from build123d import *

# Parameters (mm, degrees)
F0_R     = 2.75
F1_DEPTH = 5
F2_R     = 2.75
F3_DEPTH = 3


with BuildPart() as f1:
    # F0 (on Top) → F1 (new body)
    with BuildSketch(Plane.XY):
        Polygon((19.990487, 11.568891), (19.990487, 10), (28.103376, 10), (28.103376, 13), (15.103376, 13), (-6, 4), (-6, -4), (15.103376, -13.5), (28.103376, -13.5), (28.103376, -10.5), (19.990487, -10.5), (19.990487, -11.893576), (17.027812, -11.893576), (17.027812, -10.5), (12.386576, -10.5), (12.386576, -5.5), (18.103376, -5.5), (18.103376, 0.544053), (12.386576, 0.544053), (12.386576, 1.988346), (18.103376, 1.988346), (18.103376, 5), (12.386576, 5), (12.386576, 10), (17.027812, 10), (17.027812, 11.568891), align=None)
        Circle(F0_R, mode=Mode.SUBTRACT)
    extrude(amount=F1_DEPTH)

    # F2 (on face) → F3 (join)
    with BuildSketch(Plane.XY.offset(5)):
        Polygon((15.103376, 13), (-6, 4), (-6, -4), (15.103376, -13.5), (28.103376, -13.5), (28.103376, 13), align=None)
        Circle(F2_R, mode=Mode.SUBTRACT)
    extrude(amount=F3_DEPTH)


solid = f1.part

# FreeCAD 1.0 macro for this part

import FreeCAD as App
import Part
import Sketcher
from FreeCAD import Vector

doc = App.newDocument("Part")
body = doc.addObject("PartDesign::Body", "Body")

# Sketch on XY plane
sketch1 = doc.addObject("Sketcher::SketchObject", "Sketch")
body.addObject(sketch1)
sketch1.AttachmentSupport = (doc.XY_Plane, [""])
sketch1.MapMode = "FlatFace"
sketch1.addGeometry([
    Part.LineSegment(Vector(20, 11.6, 0), Vector(20, 10, 0)),  # 0
    Part.LineSegment(Vector(20, 10, 0), Vector(28.1, 10, 0)),  # 1
    Part.LineSegment(Vector(28.1, 10, 0), Vector(28.1, 13, 0)),  # 2
    Part.LineSegment(Vector(28.1, 13, 0), Vector(15.1, 13, 0)),  # 3
    Part.LineSegment(Vector(15.1, 13, 0), Vector(-6, 4, 0)),  # 4
    Part.LineSegment(Vector(-6, 4, 0), Vector(-6, -4, 0)),  # 5
    Part.LineSegment(Vector(-6, -4, 0), Vector(15.1, -13.5, 0)),  # 6
    Part.LineSegment(Vector(15.1, -13.5, 0), Vector(28.1, -13.5, 0)),  # 7
    Part.LineSegment(Vector(28.1, -13.5, 0), Vector(28.1, -10.5, 0)),  # 8
    Part.LineSegment(Vector(28.1, -10.5, 0), Vector(20, -10.5, 0)),  # 9
    Part.LineSegment(Vector(20, -10.5, 0), Vector(20, -11.9, 0)),  # 10
    Part.LineSegment(Vector(20, -11.9, 0), Vector(17, -11.9, 0)),  # 11
    Part.LineSegment(Vector(17, -11.9, 0), Vector(17, -10.5, 0)),  # 12
    Part.LineSegment(Vector(17, -10.5, 0), Vector(12.4, -10.5, 0)),  # 13
    Part.LineSegment(Vector(12.4, -10.5, 0), Vector(12.4, -5.5, 0)),  # 14
    Part.LineSegment(Vector(12.4, -5.5, 0), Vector(18.1, -5.5, 0)),  # 15
    Part.LineSegment(Vector(18.1, -5.5, 0), Vector(18.1, 0.5, 0)),  # 16
    Part.LineSegment(Vector(18.1, 0.5, 0), Vector(12.4, 0.5, 0)),  # 17
    Part.LineSegment(Vector(12.4, 0.5, 0), Vector(12.4, 2, 0)),  # 18
    Part.LineSegment(Vector(12.4, 2, 0), Vector(18.1, 2, 0)),  # 19
    Part.LineSegment(Vector(18.1, 2, 0), Vector(18.1, 5, 0)),  # 20
    Part.LineSegment(Vector(18.1, 5, 0), Vector(12.4, 5, 0)),  # 21
    Part.LineSegment(Vector(12.4, 5, 0), Vector(12.4, 10, 0)),  # 22
    Part.LineSegment(Vector(12.4, 10, 0), Vector(17, 10, 0)),  # 23
    Part.LineSegment(Vector(17, 10, 0), Vector(17, 11.6, 0)),  # 24
    Part.LineSegment(Vector(17, 11.6, 0), Vector(20, 11.6, 0)),  # 25
    Part.Circle(Vector(0, 0, 0), Vector(0, 0, 1), 2.8),  # 26
], False)
sketch1.addConstraint([
    Sketcher.Constraint("Coincident", 0, 2, 1, 1),
    Sketcher.Constraint("Coincident", 1, 2, 2, 1),
    Sketcher.Constraint("Coincident", 2, 2, 3, 1),
    Sketcher.Constraint("Coincident", 3, 2, 4, 1),
    Sketcher.Constraint("Coincident", 4, 2, 5, 1),
    Sketcher.Constraint("Coincident", 5, 2, 6, 1),
    Sketcher.Constraint("Coincident", 6, 2, 7, 1),
    Sketcher.Constraint("Coincident", 7, 2, 8, 1),
    Sketcher.Constraint("Coincident", 8, 2, 9, 1),
    Sketcher.Constraint("Coincident", 9, 2, 10, 1),
    Sketcher.Constraint("Coincident", 10, 2, 11, 1),
    Sketcher.Constraint("Coincident", 11, 2, 12, 1),
    Sketcher.Constraint("Coincident", 12, 2, 13, 1),
    Sketcher.Constraint("Coincident", 13, 2, 14, 1),
    Sketcher.Constraint("Coincident", 14, 2, 15, 1),
    Sketcher.Constraint("Coincident", 15, 2, 16, 1),
    Sketcher.Constraint("Coincident", 16, 2, 17, 1),
    Sketcher.Constraint("Coincident", 17, 2, 18, 1),
    Sketcher.Constraint("Coincident", 18, 2, 19, 1),
    Sketcher.Constraint("Coincident", 19, 2, 20, 1),
    Sketcher.Constraint("Coincident", 20, 2, 21, 1),
    Sketcher.Constraint("Coincident", 21, 2, 22, 1),
    Sketcher.Constraint("Coincident", 22, 2, 23, 1),
    Sketcher.Constraint("Coincident", 23, 2, 24, 1),
    Sketcher.Constraint("Coincident", 24, 2, 25, 1),
    Sketcher.Constraint("Coincident", 25, 2, 0, 1),
    Sketcher.Constraint("Vertical", 0),
    Sketcher.Constraint("Horizontal", 1),
    Sketcher.Constraint("Vertical", 2),
    Sketcher.Constraint("Horizontal", 3),
    Sketcher.Constraint("Vertical", 5),
    Sketcher.Constraint("Horizontal", 7),
    Sketcher.Constraint("Vertical", 8),
    Sketcher.Constraint("Horizontal", 9),
    Sketcher.Constraint("Vertical", 10),
    Sketcher.Constraint("Horizontal", 11),
    Sketcher.Constraint("Vertical", 12),
    Sketcher.Constraint("Horizontal", 13),
    Sketcher.Constraint("Vertical", 14),
    Sketcher.Constraint("Horizontal", 15),
    Sketcher.Constraint("Vertical", 16),
    Sketcher.Constraint("Horizontal", 17),
    Sketcher.Constraint("Vertical", 18),
    Sketcher.Constraint("Horizontal", 19),
    Sketcher.Constraint("Vertical", 20),
    Sketcher.Constraint("Horizontal", 21),
    Sketcher.Constraint("Vertical", 22),
    Sketcher.Constraint("Horizontal", 23),
    Sketcher.Constraint("Vertical", 24),
    Sketcher.Constraint("Horizontal", 25),
    Sketcher.Constraint("Coincident", 26, 3, -1, 1),
    Sketcher.Constraint("Horizontal", 9, 2, 12, 2),
    Sketcher.Constraint("Horizontal", 1, 2, 22, 2),
    Sketcher.Constraint("Vertical", 3, 2, 6, 2),
    Sketcher.Constraint("Vertical", 2, 2, 7, 2),
    Sketcher.Constraint("Vertical", 0, 2, 9, 2),
    Sketcher.Constraint("Vertical", 14, 2, 17, 2),
    Sketcher.Constraint("Vertical", 16, 2, 19, 2),
    Sketcher.Constraint("Vertical", 18, 2, 21, 2),
    Sketcher.Constraint("Vertical", 12, 2, 23, 2),
    Sketcher.Constraint("Equal", 2, 8),
    Sketcher.Constraint("Equal", 14, 22),
    Sketcher.Constraint("Diameter", 26, 5.5),
    Sketcher.Constraint("DistanceX", 3, 2, 3, 1, 13.0),
    Sketcher.Constraint("DistanceY", 2, 1, 2, 2, 3.0),
    Sketcher.Constraint("DistanceY", 5, 2, 5, 1, 8.0),
    Sketcher.Constraint("DistanceY", 14, 1, 14, 2, 5.0),
    Sketcher.Constraint("DistanceY", -1, 1, 0, 2, 10.0),
    Sketcher.Constraint("DistanceX", 4, 2, -1, 1, 6.0),
    Sketcher.Constraint("DistanceY", -1, 1, 4, 2, 4.0),
    Sketcher.Constraint("DistanceY", 6, 2, -1, 1, 13.5),
    Sketcher.Constraint("DistanceX", 15, 1, 15, 2, 5.7168),
    Sketcher.Constraint("DistanceX", 1, 1, 1, 2, 8.112889),
    Sketcher.Constraint("DistanceY", 0, 2, 0, 1, 1.568891),
    Sketcher.Constraint("DistanceX", 13, 2, 6, 2, 2.7168),
    Sketcher.Constraint("DistanceX", 11, 2, 11, 1, 2.962675),
    Sketcher.Constraint("DistanceY", 10, 2, 10, 1, 1.393576),
    Sketcher.Constraint("DistanceY", 16, 1, 16, 2, 6.044053),
    Sketcher.Constraint("DistanceY", 18, 1, 18, 2, 1.444293),
    Sketcher.Constraint("Distance", 4, 22.942373),
])
pad1 = doc.addObject("PartDesign::Pad", "Pad")
body.addObject(pad1)
pad1.Profile = sketch1
pad1.Length = 5

# Sketch on XY plane
sketch2 = doc.addObject("Sketcher::SketchObject", "Sketch001")
body.addObject(sketch2)
sketch2.AttachmentSupport = (doc.XY_Plane, [""])
sketch2.MapMode = "FlatFace"
sketch2.AttachmentOffset = App.Placement(Vector(0, 0, 5), App.Rotation())
sketch2.addGeometry([
    Part.LineSegment(Vector(15.1, 13, 0), Vector(-6, 4, 0)),  # 0
    Part.LineSegment(Vector(-6, 4, 0), Vector(-6, -4, 0)),  # 1
    Part.LineSegment(Vector(-6, -4, 0), Vector(15.1, -13.5, 0)),  # 2
    Part.LineSegment(Vector(15.1, -13.5, 0), Vector(28.1, -13.5, 0)),  # 3
    Part.LineSegment(Vector(28.1, -13.5, 0), Vector(28.1, 13, 0)),  # 4
    Part.LineSegment(Vector(28.1, 13, 0), Vector(15.1, 13, 0)),  # 5
    Part.Circle(Vector(0, 0, 0), Vector(0, 0, 1), 2.8),  # 6
], False)
sketch2.addConstraint([
    Sketcher.Constraint("Coincident", 0, 2, 1, 1),
    Sketcher.Constraint("Coincident", 1, 2, 2, 1),
    Sketcher.Constraint("Coincident", 2, 2, 3, 1),
    Sketcher.Constraint("Coincident", 3, 2, 4, 1),
    Sketcher.Constraint("Coincident", 4, 2, 5, 1),
    Sketcher.Constraint("Coincident", 5, 2, 0, 1),
    Sketcher.Constraint("Vertical", 1),
    Sketcher.Constraint("Horizontal", 3),
    Sketcher.Constraint("Vertical", 4),
    Sketcher.Constraint("Horizontal", 5),
    Sketcher.Constraint("Coincident", 6, 3, -1, 1),
    Sketcher.Constraint("Vertical", 2, 2, 5, 2),
    Sketcher.Constraint("Diameter", 6, 5.5),
    Sketcher.Constraint("DistanceX", 3, 1, 3, 2, 13.0),
    Sketcher.Constraint("DistanceY", 1, 2, 1, 1, 8.0),
    Sketcher.Constraint("DistanceY", 4, 1, 4, 2, 26.5),
    Sketcher.Constraint("DistanceX", 0, 2, -1, 1, 6.0),
    Sketcher.Constraint("DistanceY", -1, 1, 0, 2, 4.0),
    Sketcher.Constraint("DistanceY", -1, 1, 4, 2, 13.0),
    Sketcher.Constraint("Distance", 0, 22.942373),
])
pad2 = doc.addObject("PartDesign::Pad", "Pad001")
body.addObject(pad2)
pad2.Profile = sketch2
pad2.Length = 3

doc.recompute()
